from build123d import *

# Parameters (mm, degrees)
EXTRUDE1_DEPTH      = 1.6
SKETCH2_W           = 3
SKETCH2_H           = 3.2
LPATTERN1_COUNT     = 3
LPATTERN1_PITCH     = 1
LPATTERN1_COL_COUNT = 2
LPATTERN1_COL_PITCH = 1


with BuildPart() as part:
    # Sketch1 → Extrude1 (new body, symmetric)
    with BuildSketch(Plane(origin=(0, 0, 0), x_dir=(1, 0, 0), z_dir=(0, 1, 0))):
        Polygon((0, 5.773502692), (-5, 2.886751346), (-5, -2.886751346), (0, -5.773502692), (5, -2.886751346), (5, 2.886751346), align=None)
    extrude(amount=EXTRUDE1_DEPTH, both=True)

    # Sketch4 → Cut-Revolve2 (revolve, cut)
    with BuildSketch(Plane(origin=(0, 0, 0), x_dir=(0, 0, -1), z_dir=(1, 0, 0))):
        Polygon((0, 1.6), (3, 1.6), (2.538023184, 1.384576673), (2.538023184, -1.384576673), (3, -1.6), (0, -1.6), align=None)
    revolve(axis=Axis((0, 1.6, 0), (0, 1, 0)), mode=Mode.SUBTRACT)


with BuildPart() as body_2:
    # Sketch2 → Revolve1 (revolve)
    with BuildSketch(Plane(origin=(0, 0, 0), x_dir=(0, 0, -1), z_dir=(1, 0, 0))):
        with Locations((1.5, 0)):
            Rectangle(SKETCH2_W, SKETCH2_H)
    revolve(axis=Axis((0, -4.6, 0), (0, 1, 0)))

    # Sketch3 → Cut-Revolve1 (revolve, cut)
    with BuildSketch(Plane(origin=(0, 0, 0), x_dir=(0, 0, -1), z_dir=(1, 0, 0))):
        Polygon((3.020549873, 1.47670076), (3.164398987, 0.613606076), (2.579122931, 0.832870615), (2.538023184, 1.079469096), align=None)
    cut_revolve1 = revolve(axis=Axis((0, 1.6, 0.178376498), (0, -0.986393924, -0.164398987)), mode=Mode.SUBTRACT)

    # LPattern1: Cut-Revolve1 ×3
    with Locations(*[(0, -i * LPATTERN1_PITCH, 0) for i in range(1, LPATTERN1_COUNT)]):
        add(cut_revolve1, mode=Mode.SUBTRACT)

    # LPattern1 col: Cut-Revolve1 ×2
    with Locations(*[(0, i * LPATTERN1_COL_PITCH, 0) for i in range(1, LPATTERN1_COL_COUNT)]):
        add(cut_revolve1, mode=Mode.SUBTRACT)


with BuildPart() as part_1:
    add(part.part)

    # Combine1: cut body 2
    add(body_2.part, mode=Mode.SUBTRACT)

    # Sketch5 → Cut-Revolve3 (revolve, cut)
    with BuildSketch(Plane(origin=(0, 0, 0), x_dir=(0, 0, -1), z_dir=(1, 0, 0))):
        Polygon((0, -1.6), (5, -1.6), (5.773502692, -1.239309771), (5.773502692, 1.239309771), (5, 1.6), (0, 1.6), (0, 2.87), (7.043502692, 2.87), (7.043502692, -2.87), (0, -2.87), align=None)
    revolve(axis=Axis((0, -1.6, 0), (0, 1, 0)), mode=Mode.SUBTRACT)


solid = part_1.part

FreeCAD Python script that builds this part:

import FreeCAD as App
import Part
import Sketcher
Q = App.Units.Quantity


def add_polygon(sketch, points):
    """Adds a closed chain of lines whose ends are joined by coincident constraints."""
    first, n = sketch.GeometryCount, len(points)
    for a, b in zip(points, points[1:] + points[:1]):
        sketch.addGeometry(Part.LineSegment(App.Vector(*a, 0), App.Vector(*b, 0)), False)
    for i in range(n):
        sketch.addConstraint(Sketcher.Constraint("Coincident", first + i, 2, first + (i + 1) % n, 1))

doc = App.newDocument("Part")
body = doc.addObject("PartDesign::Body", "Body")

sketch1 = doc.addObject("Sketcher::SketchObject", "Sketch")
body.addObject(sketch1)
sketch1.AttachmentSupport = (doc.XZ_Plane, [""])
sketch1.MapMode = "FlatFace"
add_polygon(sketch1, [(0, -5.773503), (-5, -2.886751), (-5, 2.886751), (0, 5.773503), (5, 2.886751), (5, -2.886751)])
sketch1.addConstraint(Sketcher.Constraint("Vertical", 1))
sketch1.addConstraint(Sketcher.Constraint("Vertical", 4))
sketch1.addConstraint(Sketcher.Constraint("Symmetric", 0, 2, 3, 2, -1, 1))
sketch1.addConstraint(Sketcher.Constraint("Symmetric", 2, 2, 5, 2, -1, 1))
sketch1.addConstraint(Sketcher.Constraint("PointOnObject", 2, 2, -2))
sketch1.addConstraint(Sketcher.Constraint("Parallel", 2, 5))
sketch1.addConstraint(Sketcher.Constraint("Horizontal", 1, 2, 3, 2))
sketch1.addConstraint(Sketcher.Constraint("Angle", 0, Q("150 deg")))
sketch1.addConstraint(Sketcher.Constraint("DistanceX", 0, 2, -1, 1, Q("5 mm")))
sketch1.addConstraint(Sketcher.Constraint("DistanceY", 1, 1, 1, 2, Q("5.773503 mm")))
pad1 = doc.addObject("PartDesign::Pad", "Pad")
body.addObject(pad1)
pad1.Profile = sketch1
pad1.Length = 3.2
pad1.Midplane = True

sketch2 = doc.addObject("Sketcher::SketchObject", "Sketch001")
body.addObject(sketch2)
sketch2.AttachmentSupport = (doc.YZ_Plane, [""])
sketch2.MapMode = "FlatFace"
add_polygon(sketch2, [(1.6, -3), (1.6, 0), (-1.6, 0), (-1.6, -3), (-1.384577, -2.538023), (1.384577, -2.538023)])
sketch2.addConstraint(Sketcher.Constraint("Vertical", 0))
sketch2.addConstraint(Sketcher.Constraint("Horizontal", 1))
sketch2.addConstraint(Sketcher.Constraint("Vertical", 2))
sketch2.addConstraint(Sketcher.Constraint("Horizontal", 4))
sketch2.addConstraint(Sketcher.Constraint("Symmetric", 0, 2, 1, 2, -1, 1))
sketch2.addConstraint(Sketcher.Constraint("Horizontal", 2, 2, 5, 2))
sketch2.addConstraint(Sketcher.Constraint("Equal", 3, 5))
sketch2.addConstraint(Sketcher.Constraint("DistanceY", 0, 1, 0, 2, Q("3 mm")))
sketch2.addConstraint(Sketcher.Constraint("Angle", 3, Q("65 deg")))
sketch2.addConstraint(Sketcher.Constraint("DistanceX", 1, 2, 1, 1, Q("3.2 mm")))
sketch2.addConstraint(Sketcher.Constraint("DistanceX", 4, 1, 4, 2, Q("2.769153 mm")))
groove = doc.addObject("PartDesign::Groove", "Groove")
body.addObject(groove)
groove.Profile = sketch2
groove.ReferenceAxis = (sketch2, ["H_Axis"])
groove.Angle = 360
body2 = doc.addObject("PartDesign::Body", "Body001")

sketch3 = doc.addObject("Sketcher::SketchObject", "Sketch002")
body2.addObject(sketch3)
sketch3.AttachmentSupport = (doc.getObject("YZ_Plane001"), [""])
sketch3.MapMode = "FlatFace"
add_polygon(sketch3, [(1.6, 0), (-1.6, 0), (-1.6, -3), (1.6, -3)])
sketch3.addConstraint(Sketcher.Constraint("Horizontal", 0))
sketch3.addConstraint(Sketcher.Constraint("Vertical", 1))
sketch3.addConstraint(Sketcher.Constraint("Horizontal", 2))
sketch3.addConstraint(Sketcher.Constraint("Vertical", 3))
sketch3.addConstraint(Sketcher.Constraint("Symmetric", 0, 2, 3, 2, -1, 1))
sketch3.addConstraint(Sketcher.Constraint("DistanceY", 1, 2, 1, 1, Q("3 mm")))
sketch3.addConstraint(Sketcher.Constraint("DistanceX", 0, 2, 0, 1, Q("3.2 mm")))
revolution = doc.addObject("PartDesign::Revolution", "Revolution")
body2.addObject(revolution)
revolution.Profile = sketch3
revolution.ReferenceAxis = (sketch3, ["H_Axis"])
revolution.Angle = 360

sketch4 = doc.addObject("Sketcher::SketchObject", "Sketch003")
body2.addObject(sketch4)
sketch4.AttachmentSupport = (doc.getObject("YZ_Plane001"), [""])
sketch4.MapMode = "FlatFace"
add_polygon(sketch4, [(0.613606, -3.164399), (1.476701, -3.02055), (1.079469, -2.538023), (0.832871, -2.579123)])
sketch4.addGeometry(Part.LineSegment(App.Vector(0.961288, 0.071925, 0), App.Vector(0.098194, -0.071925, 0)), True)
sketch4.addConstraint(Sketcher.Constraint("Parallel", 0, 2))
sketch4.addConstraint(Sketcher.Constraint("Parallel", 2, 4))
sketch4.addConstraint(Sketcher.Constraint("Equal", 1, 3))
sketch4.addConstraint(Sketcher.Constraint("Equal", 0, 4))
sketch4.addConstraint(Sketcher.Constraint("Distance", 2, Q("0.25 mm")))
sketch4.addConstraint(Sketcher.Constraint("Distance", 0, Q("0.875 mm")))
sketch4.addConstraint(Sketcher.Constraint("Distance", 1, Q("0.625 mm")))
sketch4.addConstraint(Sketcher.Constraint("DistanceX", -1, 1, 0, 2, Q("1.476701 mm")))
sketch4.addConstraint(Sketcher.Constraint("DistanceY", 3, 2, -1, 1, Q("3.164399 mm")))
sketch4.addConstraint(Sketcher.Constraint("DistanceX", 2, 2, 1, 2, Q("0.246598 mm")))
sketch4.addConstraint(Sketcher.Constraint("DistanceY", 2, 2, 4, 2, Q("2.507198 mm")))
sketch4.addConstraint(Sketcher.Constraint("DistanceX", -1, 1, 4, 1, Q("0.961288 mm")))
groove2 = doc.addObject("PartDesign::Groove", "Groove001")
body2.addObject(groove2)
groove2.Profile = sketch4
groove2.ReferenceAxis = (sketch4, ["Axis0"])
groove2.Angle = 360
doc.recompute()

linearpattern = doc.addObject("PartDesign::LinearPattern", "LinearPattern")
body2.addObject(linearpattern)
linearpattern.Originals = [groove2]
linearpattern.Direction = (doc.getObject("Y_Axis001"), [""])
linearpattern.Mode = "offset"
linearpattern.Offset = 1
linearpattern.Occurrences = 3
linearpattern.Reversed = True
body2.Tip = linearpattern
doc.recompute()

linearpattern2 = doc.addObject("PartDesign::LinearPattern", "LinearPattern001")
body2.addObject(linearpattern2)
linearpattern2.Originals = [groove2]
linearpattern2.Direction = (doc.getObject("Y_Axis001"), [""])
linearpattern2.Mode = "offset"
linearpattern2.Offset = 1
linearpattern2.Occurrences = 2
body2.Tip = linearpattern2
doc.recompute()

boolean = doc.addObject("PartDesign::Boolean", "Boolean")
body.addObject(boolean)
boolean.Type = "Cut"
boolean.addObjects([body2])

sketch5 = doc.addObject("Sketcher::SketchObject", "Sketch004")
body.addObject(sketch5)
sketch5.AttachmentSupport = (doc.YZ_Plane, [""])
sketch5.MapMode = "FlatFace"
add_polygon(sketch5, [(-1.6, -5), (-1.6, 0), (-2.87, 0), (-2.87, -7.043503), (2.87, -7.043503), (2.87, 0), (1.6, 0), (1.6, -5), (1.23931, -5.773503), (-1.23931, -5.773503)])
sketch5.addConstraint(Sketcher.Constraint("Vertical", 0))
sketch5.addConstraint(Sketcher.Constraint("Horizontal", 1))
sketch5.addConstraint(Sketcher.Constraint("Vertical", 2))
sketch5.addConstraint(Sketcher.Constraint("Horizontal", 3))
sketch5.addConstraint(Sketcher.Constraint("Vertical", 4))
sketch5.addConstraint(Sketcher.Constraint("Horizontal", 5))
sketch5.addConstraint(Sketcher.Constraint("Vertical", 6))
sketch5.addConstraint(Sketcher.Constraint("Horizontal", 8))
sketch5.addConstraint(Sketcher.Constraint("Symmetric", 1, 2, 4, 2, -1, 1))
sketch5.addConstraint(Sketcher.Constraint("Symmetric", 0, 2, 5, 2, -2))
sketch5.addConstraint(Sketcher.Constraint("Horizontal", 6, 2, 9, 2))
sketch5.addConstraint(Sketcher.Constraint("Equal", 7, 9))
sketch5.addConstraint(Sketcher.Constraint("DistanceY", 0, 1, 0, 2, Q("5 mm")))
sketch5.addConstraint(Sketcher.Constraint("Angle", 7, Q("-115 deg")))
sketch5.addConstraint(Sketcher.Constraint("DistanceX", 1, 2, 1, 1, Q("1.27 mm")))
sketch5.addConstraint(Sketcher.Constraint("DistanceX", 3, 1, 3, 2, Q("5.74 mm")))
sketch5.addConstraint(Sketcher.Constraint("DistanceY", 3, 2, 7, 2, Q("1.27 mm")))
sketch5.addConstraint(Sketcher.Constraint("DistanceX", 8, 2, 8, 1, Q("2.47862 mm")))
groove3 = doc.addObject("PartDesign::Groove", "Groove002")
body.addObject(groove3)
groove3.Profile = sketch5
groove3.ReferenceAxis = (sketch5, ["H_Axis"])
groove3.Angle = 360

doc.recompute()
